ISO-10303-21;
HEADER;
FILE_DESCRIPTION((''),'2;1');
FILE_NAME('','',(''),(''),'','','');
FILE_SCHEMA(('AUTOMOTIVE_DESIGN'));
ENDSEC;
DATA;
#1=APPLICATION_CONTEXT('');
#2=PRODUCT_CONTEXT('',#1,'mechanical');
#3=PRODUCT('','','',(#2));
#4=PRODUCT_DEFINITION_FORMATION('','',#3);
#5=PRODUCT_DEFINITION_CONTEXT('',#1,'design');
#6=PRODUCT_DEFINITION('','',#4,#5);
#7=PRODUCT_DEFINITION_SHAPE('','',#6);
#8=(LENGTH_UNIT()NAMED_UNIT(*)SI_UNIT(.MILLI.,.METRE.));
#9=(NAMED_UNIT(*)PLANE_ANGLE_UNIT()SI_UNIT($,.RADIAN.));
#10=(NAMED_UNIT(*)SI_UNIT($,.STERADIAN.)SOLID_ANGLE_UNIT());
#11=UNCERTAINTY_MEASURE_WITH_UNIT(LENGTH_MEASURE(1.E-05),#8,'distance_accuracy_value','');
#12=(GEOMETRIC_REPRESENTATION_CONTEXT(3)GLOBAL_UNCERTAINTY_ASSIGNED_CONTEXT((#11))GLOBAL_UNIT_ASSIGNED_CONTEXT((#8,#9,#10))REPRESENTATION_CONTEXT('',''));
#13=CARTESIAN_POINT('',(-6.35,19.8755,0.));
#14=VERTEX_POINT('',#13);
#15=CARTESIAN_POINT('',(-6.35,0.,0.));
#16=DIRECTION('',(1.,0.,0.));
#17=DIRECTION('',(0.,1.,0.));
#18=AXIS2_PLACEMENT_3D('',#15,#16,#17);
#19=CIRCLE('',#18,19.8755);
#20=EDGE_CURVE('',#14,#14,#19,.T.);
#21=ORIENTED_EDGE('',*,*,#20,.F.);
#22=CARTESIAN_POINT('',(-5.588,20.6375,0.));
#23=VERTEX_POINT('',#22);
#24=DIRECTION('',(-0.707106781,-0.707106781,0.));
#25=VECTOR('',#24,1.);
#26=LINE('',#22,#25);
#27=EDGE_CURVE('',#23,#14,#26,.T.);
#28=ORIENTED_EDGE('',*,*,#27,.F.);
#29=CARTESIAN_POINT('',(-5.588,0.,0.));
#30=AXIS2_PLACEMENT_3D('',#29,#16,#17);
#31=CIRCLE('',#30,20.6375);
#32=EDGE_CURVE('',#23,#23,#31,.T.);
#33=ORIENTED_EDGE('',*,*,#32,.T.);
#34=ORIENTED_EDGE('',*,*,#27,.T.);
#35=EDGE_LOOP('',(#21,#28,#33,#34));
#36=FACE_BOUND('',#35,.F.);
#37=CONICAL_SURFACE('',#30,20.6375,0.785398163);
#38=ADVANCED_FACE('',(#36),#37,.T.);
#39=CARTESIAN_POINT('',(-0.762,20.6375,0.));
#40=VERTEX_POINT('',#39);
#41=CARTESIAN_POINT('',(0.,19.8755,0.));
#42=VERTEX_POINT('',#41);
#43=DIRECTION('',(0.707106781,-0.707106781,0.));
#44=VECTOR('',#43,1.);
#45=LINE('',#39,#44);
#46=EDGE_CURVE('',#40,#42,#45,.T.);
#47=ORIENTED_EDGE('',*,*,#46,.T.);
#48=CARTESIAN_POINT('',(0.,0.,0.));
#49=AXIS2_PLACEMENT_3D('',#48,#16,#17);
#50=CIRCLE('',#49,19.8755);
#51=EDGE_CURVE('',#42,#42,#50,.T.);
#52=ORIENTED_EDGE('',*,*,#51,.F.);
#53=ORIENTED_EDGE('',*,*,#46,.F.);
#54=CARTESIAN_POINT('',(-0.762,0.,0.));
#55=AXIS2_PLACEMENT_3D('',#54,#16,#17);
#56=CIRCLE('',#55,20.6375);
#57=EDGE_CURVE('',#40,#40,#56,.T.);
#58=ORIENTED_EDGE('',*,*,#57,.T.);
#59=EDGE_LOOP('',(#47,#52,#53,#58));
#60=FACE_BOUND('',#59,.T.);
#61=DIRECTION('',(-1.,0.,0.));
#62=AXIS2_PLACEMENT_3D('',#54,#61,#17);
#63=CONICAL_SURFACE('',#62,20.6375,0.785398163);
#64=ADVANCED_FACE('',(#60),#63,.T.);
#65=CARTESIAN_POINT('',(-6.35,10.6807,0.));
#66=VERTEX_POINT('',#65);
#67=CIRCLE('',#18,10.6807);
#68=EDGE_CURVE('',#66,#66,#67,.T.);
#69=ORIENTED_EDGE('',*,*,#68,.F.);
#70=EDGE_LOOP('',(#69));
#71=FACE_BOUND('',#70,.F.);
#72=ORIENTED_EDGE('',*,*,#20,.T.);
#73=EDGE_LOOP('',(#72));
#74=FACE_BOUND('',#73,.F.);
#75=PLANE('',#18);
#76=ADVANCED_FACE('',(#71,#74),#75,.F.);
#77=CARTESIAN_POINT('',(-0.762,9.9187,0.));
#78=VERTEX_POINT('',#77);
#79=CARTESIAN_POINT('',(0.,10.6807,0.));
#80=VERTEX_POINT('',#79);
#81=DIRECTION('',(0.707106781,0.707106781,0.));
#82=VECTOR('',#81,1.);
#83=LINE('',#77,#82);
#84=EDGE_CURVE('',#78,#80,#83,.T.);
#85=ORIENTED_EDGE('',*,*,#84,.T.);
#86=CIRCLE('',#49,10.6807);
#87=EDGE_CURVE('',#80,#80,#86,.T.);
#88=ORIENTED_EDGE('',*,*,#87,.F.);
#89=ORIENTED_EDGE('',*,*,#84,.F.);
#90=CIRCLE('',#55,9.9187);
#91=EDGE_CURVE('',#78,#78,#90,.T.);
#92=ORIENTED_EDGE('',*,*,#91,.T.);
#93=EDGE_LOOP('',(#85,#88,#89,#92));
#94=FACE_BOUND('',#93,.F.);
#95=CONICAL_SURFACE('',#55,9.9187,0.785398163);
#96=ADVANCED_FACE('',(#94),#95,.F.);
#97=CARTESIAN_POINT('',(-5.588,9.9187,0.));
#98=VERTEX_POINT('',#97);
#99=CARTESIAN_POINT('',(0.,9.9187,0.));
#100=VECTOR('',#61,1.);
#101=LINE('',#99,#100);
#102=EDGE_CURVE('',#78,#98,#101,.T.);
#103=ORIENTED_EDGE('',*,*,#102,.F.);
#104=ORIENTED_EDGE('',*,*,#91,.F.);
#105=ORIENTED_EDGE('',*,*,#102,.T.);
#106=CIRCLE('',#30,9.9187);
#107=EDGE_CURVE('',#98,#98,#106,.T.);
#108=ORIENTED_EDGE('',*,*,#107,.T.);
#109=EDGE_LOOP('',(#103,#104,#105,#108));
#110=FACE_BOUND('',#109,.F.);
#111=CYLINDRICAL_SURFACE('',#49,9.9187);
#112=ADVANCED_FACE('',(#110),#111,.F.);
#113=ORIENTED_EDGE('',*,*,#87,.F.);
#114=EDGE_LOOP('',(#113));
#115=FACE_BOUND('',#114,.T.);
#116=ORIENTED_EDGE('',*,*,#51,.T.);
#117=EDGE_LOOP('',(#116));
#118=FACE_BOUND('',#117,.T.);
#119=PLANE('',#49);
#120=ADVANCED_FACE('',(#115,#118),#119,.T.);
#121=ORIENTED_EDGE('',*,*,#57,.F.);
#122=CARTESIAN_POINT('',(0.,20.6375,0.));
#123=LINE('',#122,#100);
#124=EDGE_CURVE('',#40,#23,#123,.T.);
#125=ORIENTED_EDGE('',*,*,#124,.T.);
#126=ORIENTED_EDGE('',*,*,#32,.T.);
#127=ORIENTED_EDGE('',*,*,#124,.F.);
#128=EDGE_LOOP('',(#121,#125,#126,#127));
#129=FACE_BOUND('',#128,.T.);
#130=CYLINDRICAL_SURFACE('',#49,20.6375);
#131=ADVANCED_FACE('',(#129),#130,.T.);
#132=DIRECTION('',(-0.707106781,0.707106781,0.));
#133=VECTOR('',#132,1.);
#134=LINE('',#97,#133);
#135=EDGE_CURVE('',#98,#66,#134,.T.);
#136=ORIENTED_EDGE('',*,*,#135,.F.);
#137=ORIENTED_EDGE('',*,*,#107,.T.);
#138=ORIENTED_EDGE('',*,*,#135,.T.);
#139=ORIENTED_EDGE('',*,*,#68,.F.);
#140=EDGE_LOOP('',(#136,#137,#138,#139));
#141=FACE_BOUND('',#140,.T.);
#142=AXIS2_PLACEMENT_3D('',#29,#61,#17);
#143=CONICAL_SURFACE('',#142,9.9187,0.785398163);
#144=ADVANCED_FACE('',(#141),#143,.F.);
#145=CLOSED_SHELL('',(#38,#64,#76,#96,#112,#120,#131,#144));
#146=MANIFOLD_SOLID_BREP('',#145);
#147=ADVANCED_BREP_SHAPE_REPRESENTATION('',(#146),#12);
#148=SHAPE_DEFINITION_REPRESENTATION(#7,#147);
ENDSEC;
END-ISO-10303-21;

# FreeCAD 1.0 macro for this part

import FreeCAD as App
import Part
import Sketcher
Q = App.Units.Quantity


def edges_at(feature, points):
    """Names of the edges that pass closest to the given points."""
    edges = feature.Shape.Edges
    near = lambda p: min(range(len(edges)), key=lambda i: edges[i].distToShape(Part.Vertex(*p))[0])
    return sorted({f"Edge{near(p) + 1}" for p in points})

doc = App.newDocument("Part")
body = doc.addObject("PartDesign::Body", "Body")

# Sketch on YZ plane
sketch1 = doc.addObject("Sketcher::SketchObject", "Sketch")
body.addObject(sketch1)
sketch1.AttachmentSupport = (doc.YZ_Plane, [""])
sketch1.MapMode = "FlatFace"
sketch1.addGeometry(Part.Circle(App.Vector(0, 0, 0), App.Vector(0, 0, 1), 21), False)
sketch1.addGeometry(Part.Circle(App.Vector(0, 0, 0), App.Vector(0, 0, 1), 10), False)
sketch1.addConstraint(Sketcher.Constraint("Coincident", 0, 3, -1, 1))
sketch1.addConstraint(Sketcher.Constraint("Coincident", 1, 3, -1, 1))
sketch1.addConstraint(Sketcher.Constraint("Diameter", 0, Q("1.625 in")))
sketch1.addConstraint(Sketcher.Constraint("Diameter", 1, Q("0.781 in")))
pad1 = doc.addObject("PartDesign::Pad", "Pad")
body.addObject(pad1)
pad1.Profile = sketch1
pad1.Length = Q("0.25 in")
pad1.Reversed = True
doc.recompute()

chamfer = doc.addObject("PartDesign::Chamfer", "Chamfer")
body.addObject(chamfer)
chamfer.Base = (pad1, edges_at(pad1, [
    (0, -20.637, 0),
    (-6.35, -20.637, 0),
    (0, -9.919, 0),
    (-6.35, -9.919, 0),
]))
chamfer.Size = Q("0.03 in")

doc.recompute()
